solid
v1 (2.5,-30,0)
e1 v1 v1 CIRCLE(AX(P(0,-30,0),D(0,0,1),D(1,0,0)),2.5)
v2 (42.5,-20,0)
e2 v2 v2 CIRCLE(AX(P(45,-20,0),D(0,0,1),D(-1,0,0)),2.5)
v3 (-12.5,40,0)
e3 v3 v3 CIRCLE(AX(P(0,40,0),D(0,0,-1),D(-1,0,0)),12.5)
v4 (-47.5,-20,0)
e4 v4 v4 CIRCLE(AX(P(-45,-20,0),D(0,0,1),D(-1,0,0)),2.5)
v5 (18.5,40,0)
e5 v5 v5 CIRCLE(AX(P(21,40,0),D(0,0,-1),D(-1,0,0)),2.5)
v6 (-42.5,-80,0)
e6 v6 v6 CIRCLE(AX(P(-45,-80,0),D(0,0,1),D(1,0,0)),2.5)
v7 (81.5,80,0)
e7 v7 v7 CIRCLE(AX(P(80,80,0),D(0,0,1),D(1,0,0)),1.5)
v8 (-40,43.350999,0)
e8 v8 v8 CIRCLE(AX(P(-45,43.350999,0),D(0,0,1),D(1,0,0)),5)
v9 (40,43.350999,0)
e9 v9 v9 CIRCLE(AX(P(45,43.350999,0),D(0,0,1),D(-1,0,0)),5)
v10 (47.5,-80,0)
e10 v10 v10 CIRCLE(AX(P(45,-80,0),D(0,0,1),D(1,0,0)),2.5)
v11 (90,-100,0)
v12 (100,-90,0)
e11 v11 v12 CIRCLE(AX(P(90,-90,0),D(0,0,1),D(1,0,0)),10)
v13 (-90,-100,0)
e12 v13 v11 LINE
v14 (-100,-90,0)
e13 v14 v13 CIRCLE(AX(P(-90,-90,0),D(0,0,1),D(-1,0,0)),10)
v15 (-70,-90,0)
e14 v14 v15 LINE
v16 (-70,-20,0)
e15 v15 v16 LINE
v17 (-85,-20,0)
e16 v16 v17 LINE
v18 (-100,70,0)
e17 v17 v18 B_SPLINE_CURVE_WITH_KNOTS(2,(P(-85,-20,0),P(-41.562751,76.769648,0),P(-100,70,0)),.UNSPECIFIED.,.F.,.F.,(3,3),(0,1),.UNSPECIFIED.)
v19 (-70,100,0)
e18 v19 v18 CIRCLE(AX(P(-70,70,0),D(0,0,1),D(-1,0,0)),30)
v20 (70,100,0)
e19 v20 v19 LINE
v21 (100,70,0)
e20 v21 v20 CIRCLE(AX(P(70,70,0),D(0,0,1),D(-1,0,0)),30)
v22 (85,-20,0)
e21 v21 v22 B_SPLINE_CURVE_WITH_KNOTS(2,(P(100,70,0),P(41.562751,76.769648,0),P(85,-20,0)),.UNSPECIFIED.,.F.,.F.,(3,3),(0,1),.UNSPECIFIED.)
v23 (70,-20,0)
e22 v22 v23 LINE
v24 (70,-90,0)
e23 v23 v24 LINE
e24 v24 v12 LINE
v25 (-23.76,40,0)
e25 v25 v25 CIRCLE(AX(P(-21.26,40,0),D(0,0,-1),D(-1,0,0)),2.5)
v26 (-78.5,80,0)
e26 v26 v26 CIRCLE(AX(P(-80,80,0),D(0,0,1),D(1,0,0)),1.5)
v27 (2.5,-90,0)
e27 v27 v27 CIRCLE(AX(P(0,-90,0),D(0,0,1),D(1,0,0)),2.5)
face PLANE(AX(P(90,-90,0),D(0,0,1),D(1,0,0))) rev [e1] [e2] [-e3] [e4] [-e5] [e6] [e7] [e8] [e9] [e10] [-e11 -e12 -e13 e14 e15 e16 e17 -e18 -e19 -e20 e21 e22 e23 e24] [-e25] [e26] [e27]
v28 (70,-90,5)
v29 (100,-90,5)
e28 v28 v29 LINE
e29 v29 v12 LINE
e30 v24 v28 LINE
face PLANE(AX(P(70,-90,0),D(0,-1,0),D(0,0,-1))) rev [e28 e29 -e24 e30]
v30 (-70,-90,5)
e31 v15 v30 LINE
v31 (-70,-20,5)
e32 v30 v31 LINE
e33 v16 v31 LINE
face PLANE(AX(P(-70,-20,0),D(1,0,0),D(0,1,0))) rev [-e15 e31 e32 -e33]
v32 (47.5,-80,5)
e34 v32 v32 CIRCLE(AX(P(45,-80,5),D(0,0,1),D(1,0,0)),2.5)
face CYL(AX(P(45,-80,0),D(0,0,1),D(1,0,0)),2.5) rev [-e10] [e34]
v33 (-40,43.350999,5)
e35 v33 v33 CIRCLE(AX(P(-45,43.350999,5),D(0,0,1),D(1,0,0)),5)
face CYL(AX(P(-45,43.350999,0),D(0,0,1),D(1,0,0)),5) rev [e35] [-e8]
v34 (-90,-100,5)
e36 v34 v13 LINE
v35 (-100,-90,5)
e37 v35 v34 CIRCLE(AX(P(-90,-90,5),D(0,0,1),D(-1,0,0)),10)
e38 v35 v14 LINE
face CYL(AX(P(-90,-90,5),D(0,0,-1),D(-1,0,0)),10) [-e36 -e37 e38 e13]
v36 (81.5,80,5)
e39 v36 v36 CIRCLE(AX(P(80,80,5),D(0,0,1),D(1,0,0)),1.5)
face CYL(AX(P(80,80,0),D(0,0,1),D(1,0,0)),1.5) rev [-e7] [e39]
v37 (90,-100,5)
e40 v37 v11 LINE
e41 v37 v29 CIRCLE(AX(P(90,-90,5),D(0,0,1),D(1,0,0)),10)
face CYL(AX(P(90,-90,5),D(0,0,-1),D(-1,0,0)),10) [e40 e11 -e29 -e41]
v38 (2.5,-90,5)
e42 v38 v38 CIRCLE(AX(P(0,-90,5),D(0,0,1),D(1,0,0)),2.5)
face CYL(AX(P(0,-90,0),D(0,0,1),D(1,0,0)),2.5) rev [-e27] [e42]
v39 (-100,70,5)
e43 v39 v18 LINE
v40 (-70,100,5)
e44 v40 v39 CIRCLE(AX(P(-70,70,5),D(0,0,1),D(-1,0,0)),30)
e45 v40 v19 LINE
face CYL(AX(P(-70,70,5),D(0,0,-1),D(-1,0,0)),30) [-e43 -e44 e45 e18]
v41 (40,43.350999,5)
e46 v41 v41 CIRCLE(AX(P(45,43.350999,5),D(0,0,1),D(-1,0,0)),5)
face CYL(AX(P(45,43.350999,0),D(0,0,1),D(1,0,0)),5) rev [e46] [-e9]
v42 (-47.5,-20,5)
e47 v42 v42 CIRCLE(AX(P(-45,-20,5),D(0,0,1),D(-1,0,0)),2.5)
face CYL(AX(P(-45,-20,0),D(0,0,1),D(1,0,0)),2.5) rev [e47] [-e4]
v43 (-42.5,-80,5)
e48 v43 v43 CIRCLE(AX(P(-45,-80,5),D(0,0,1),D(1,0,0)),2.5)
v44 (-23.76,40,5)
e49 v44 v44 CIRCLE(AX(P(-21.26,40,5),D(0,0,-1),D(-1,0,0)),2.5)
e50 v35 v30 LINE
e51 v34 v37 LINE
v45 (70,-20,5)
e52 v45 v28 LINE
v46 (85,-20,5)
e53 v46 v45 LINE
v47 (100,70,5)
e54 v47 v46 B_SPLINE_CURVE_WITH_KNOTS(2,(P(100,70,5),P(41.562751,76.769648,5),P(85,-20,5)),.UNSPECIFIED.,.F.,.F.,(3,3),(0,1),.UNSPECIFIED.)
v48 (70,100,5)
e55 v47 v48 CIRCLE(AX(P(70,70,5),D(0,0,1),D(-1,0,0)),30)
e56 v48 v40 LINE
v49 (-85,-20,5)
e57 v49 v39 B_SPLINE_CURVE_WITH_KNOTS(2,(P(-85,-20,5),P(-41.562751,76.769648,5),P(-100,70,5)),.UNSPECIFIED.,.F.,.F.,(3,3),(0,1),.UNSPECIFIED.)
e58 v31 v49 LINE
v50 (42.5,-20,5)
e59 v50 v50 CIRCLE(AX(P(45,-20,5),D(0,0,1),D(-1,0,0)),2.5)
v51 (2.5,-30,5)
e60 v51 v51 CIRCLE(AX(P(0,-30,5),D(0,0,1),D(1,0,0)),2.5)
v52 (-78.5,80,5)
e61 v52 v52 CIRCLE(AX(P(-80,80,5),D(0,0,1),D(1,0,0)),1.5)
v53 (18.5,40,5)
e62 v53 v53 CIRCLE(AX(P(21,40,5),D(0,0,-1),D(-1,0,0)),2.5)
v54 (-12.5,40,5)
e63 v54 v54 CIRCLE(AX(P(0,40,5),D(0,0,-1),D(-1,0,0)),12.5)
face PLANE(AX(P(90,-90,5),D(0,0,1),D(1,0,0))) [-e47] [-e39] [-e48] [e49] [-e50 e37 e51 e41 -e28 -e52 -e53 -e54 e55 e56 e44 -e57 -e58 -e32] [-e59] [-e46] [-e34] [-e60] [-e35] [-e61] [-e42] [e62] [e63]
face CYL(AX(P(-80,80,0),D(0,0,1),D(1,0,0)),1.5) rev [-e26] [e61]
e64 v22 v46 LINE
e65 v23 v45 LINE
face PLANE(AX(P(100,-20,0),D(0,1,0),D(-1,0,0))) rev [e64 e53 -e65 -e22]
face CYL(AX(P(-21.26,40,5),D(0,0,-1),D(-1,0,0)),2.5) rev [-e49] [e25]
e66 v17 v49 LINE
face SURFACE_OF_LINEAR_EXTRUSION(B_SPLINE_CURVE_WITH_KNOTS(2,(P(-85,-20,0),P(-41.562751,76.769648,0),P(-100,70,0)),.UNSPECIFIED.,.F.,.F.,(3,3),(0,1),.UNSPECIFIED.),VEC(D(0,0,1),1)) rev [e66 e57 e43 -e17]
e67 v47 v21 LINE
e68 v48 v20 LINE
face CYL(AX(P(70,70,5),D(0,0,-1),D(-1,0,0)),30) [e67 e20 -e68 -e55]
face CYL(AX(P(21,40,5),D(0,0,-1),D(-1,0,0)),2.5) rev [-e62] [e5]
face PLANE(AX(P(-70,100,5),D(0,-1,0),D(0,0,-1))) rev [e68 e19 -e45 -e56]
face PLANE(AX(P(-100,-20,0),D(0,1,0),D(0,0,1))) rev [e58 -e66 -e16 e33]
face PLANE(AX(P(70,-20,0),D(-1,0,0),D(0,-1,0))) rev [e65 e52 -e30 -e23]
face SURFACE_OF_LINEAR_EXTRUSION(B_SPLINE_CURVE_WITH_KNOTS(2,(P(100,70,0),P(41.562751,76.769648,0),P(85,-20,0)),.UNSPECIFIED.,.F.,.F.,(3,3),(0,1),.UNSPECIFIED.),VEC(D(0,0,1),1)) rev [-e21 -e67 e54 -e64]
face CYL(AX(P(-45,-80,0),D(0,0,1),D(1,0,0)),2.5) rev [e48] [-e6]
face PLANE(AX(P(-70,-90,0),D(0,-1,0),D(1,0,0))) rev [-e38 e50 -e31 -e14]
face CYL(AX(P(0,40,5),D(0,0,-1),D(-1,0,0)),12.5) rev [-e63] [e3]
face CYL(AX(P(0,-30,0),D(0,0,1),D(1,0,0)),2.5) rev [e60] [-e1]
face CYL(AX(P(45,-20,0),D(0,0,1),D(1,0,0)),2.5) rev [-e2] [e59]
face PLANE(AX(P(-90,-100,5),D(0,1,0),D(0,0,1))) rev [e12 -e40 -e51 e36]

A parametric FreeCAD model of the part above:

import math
import FreeCAD as App
import Part
import Sketcher


def add_polygon(sketch, points):
    """Adds a closed chain of lines whose ends are joined by coincident constraints."""
    first, n = sketch.GeometryCount, len(points)
    for a, b in zip(points, points[1:] + points[:1]):
        sketch.addGeometry(Part.LineSegment(App.Vector(*a, 0), App.Vector(*b, 0)), False)
    for i in range(n):
        sketch.addConstraint(Sketcher.Constraint("Coincident", first + i, 2, first + (i + 1) % n, 1))

doc = App.newDocument("Part")
body = doc.addObject("PartDesign::Body", "Body")

# Sketch on XY plane
sketch1 = body.newObject("Sketcher::SketchObject", "Sketch")
sketch1.AttachmentSupport = (doc.getObject("XY_Plane"), [""])
sketch1.MapMode = "FlatFace"
sketch1.addGeometry(Part.LineSegment(App.Vector(-90, -100, 0), App.Vector(90, -100, 0)), False)
sketch1.addGeometry(Part.ArcOfCircle(Part.Circle(App.Vector(90, -90, 0), App.Vector(0, 0, 1), 10), math.radians(-90), math.radians(0)), False)
sketch1.addGeometry(Part.LineSegment(App.Vector(100, -90, 0), App.Vector(100, 70, 0)), False)
sketch1.addGeometry(Part.ArcOfCircle(Part.Circle(App.Vector(70, 70, 0), App.Vector(0, 0, 1), 30), math.radians(0), math.radians(90)), False)
sketch1.addGeometry(Part.LineSegment(App.Vector(70, 100, 0), App.Vector(-70, 100, 0)), False)
sketch1.addGeometry(Part.ArcOfCircle(Part.Circle(App.Vector(-70, 70, 0), App.Vector(0, 0, 1), 30), math.radians(90), math.radians(180)), False)
sketch1.addGeometry(Part.LineSegment(App.Vector(-100, 70, 0), App.Vector(-100, -90, 0)), False)
sketch1.addGeometry(Part.ArcOfCircle(Part.Circle(App.Vector(-90, -90, 0), App.Vector(0, 0, 1), 10), math.radians(180), math.radians(270)), False)
sketch1.addConstraint(Sketcher.Constraint("Tangent", 0, 2, 1, 1))
sketch1.addConstraint(Sketcher.Constraint("Tangent", 1, 2, 2, 1))
sketch1.addConstraint(Sketcher.Constraint("Tangent", 2, 2, 3, 1))
sketch1.addConstraint(Sketcher.Constraint("Tangent", 3, 2, 4, 1))
sketch1.addConstraint(Sketcher.Constraint("Tangent", 4, 2, 5, 1))
sketch1.addConstraint(Sketcher.Constraint("Tangent", 5, 2, 6, 1))
sketch1.addConstraint(Sketcher.Constraint("Tangent", 6, 2, 7, 1))
sketch1.addConstraint(Sketcher.Constraint("Tangent", 7, 2, 0, 1))
sketch1.addConstraint(Sketcher.Constraint("Horizontal", 0))
sketch1.addConstraint(Sketcher.Constraint("Vertical", 2))
sketch1.addConstraint(Sketcher.Constraint("Horizontal", 4))
sketch1.addConstraint(Sketcher.Constraint("Vertical", 6))
sketch1.addConstraint(Sketcher.Constraint("Equal", 3, 5))
sketch1.addConstraint(Sketcher.Constraint("Equal", 1, 7))
sketch1.addConstraint(Sketcher.Constraint("Radius", 1, 10.0))
sketch1.addConstraint(Sketcher.Constraint("Radius", 3, 30.0))
sketch1.addConstraint(Sketcher.Constraint("DistanceX", 0, 1, 0, 2, 180.0))
sketch1.addConstraint(Sketcher.Constraint("DistanceY", 2, 1, 2, 2, 160.0))
sketch1.addConstraint(Sketcher.Constraint("DistanceX", -1, 1, 1, 3, 90.0))
sketch1.addConstraint(Sketcher.Constraint("DistanceY", 1, 3, -1, 1, 90.0))
pad1 = body.newObject("PartDesign::Pad", "Pad")
pad1.Profile = sketch1
pad1.Length = 5

# Sketch on XY plane
sketch2 = body.newObject("Sketcher::SketchObject", "Sketch001")
sketch2.AttachmentSupport = (doc.getObject("XY_Plane"), [""])
sketch2.MapMode = "FlatFace"
sketch2.AttachmentOffset = App.Placement(App.Vector(0, 0, 5), App.Rotation())
add_polygon(sketch2, [(70, -20), (70, -90), (100, -90), (100, -20)])  # lines 0-3
add_polygon(sketch2, [(-100, -20), (-100, -90), (-70, -90), (-70, -20)])  # lines 4-7
sketch2.addConstraint(Sketcher.Constraint("Vertical", 0))
sketch2.addConstraint(Sketcher.Constraint("Horizontal", 1))
sketch2.addConstraint(Sketcher.Constraint("Vertical", 2))
sketch2.addConstraint(Sketcher.Constraint("Horizontal", 3))
sketch2.addConstraint(Sketcher.Constraint("Vertical", 4))
sketch2.addConstraint(Sketcher.Constraint("Horizontal", 5))
sketch2.addConstraint(Sketcher.Constraint("Vertical", 6))
sketch2.addConstraint(Sketcher.Constraint("Horizontal", 7))
sketch2.addConstraint(Sketcher.Constraint("Symmetric", 1, 2, 4, 2, -2))
sketch2.addConstraint(Sketcher.Constraint("Symmetric", 3, 2, 6, 2, -2))
sketch2.addConstraint(Sketcher.Constraint("DistanceX", 1, 1, 1, 2, 30.0))
sketch2.addConstraint(Sketcher.Constraint("DistanceY", 0, 2, 0, 1, 70.0))
sketch2.addConstraint(Sketcher.Constraint("DistanceX", -1, 1, 0, 2, 70.0))
sketch2.addConstraint(Sketcher.Constraint("DistanceY", 0, 2, -1, 1, 90.0))
pocket1 = body.newObject("PartDesign::Pocket", "Pocket")
pocket1.Profile = sketch2
pocket1.Length = 5

# Sketch on XY plane
sketch3 = body.newObject("Sketcher::SketchObject", "Sketch002")
sketch3.AttachmentSupport = (doc.getObject("XY_Plane"), [""])
sketch3.MapMode = "FlatFace"
sketch3.AttachmentOffset = App.Placement(App.Vector(0, 0, 5), App.Rotation())
sketch3.addGeometry(Part.LineSegment(App.Vector(85, -20, 0), App.Vector(100, -20, 0)), False)
sketch3.addGeometry(Part.LineSegment(App.Vector(100, -20, 0), App.Vector(100, 70, 0)), False)
sketch3.addGeometry(Part.BSplineCurve([App.Vector(100, 70, 0), App.Vector(41.562751, 76.769648, 0), App.Vector(85, -20, 0)], [3, 3], [0, 1], False, 2, [1, 1, 1], False), False)
sketch3.addGeometry(Part.LineSegment(App.Vector(-100, -20, 0), App.Vector(-85, -20, 0)), False)
sketch3.addGeometry(Part.BSplineCurve([App.Vector(-100, 70, 0), App.Vector(-41.562751, 76.769648, 0), App.Vector(-85, -20, 0)], [3, 3], [0, 1], False, 2, [1, 1, 1], False), False)
sketch3.addGeometry(Part.LineSegment(App.Vector(-100, 70, 0), App.Vector(-100, -20, 0)), False)
sketch3.addConstraint(Sketcher.Constraint("Block", 2))
sketch3.addConstraint(Sketcher.Constraint("Block", 4))
sketch3.addConstraint(Sketcher.Constraint("Coincident", 0, 2, 1, 1))
sketch3.addConstraint(Sketcher.Constraint("Coincident", 1, 2, 2, 1))
sketch3.addConstraint(Sketcher.Constraint("Coincident", 2, 2, 0, 1))
sketch3.addConstraint(Sketcher.Constraint("Coincident", 3, 2, 4, 2))
sketch3.addConstraint(Sketcher.Constraint("Coincident", 4, 1, 5, 1))
sketch3.addConstraint(Sketcher.Constraint("Coincident", 5, 2, 3, 1))
sketch3.addConstraint(Sketcher.Constraint("Horizontal", 0))
sketch3.addConstraint(Sketcher.Constraint("Vertical", 1))
sketch3.addConstraint(Sketcher.Constraint("Horizontal", 3))
sketch3.addConstraint(Sketcher.Constraint("Vertical", 5))
pocket2 = body.newObject("PartDesign::Pocket", "Pocket001")
pocket2.Profile = sketch3
pocket2.Length = 5

# Sketch on XY plane
sketch4 = body.newObject("Sketcher::SketchObject", "Sketch003")
sketch4.AttachmentSupport = (doc.getObject("XY_Plane"), [""])
sketch4.MapMode = "FlatFace"
sketch4.AttachmentOffset = App.Placement(App.Vector(0, 0, 5), App.Rotation())
sketch4.addGeometry(Part.Circle(App.Vector(45, -80, 0), App.Vector(0, 0, 1), 2.5), False)
sketch4.addGeometry(Part.Circle(App.Vector(-45, -80, 0), App.Vector(0, 0, 1), 2.5), False)
sketch4.addGeometry(Part.Circle(App.Vector(45, -20, 0), App.Vector(0, 0, 1), 2.5), False)
sketch4.addGeometry(Part.Circle(App.Vector(-45, -20, 0), App.Vector(0, 0, 1), 2.5), False)
sketch4.addGeometry(Part.Circle(App.Vector(-45, 43.4, 0), App.Vector(0, 0, 1), 5), False)
sketch4.addGeometry(Part.Circle(App.Vector(45, 43.4, 0), App.Vector(0, 0, 1), 5), False)
sketch4.addGeometry(Part.Circle(App.Vector(0, -30, 0), App.Vector(0, 0, 1), 2.5), False)
sketch4.addConstraint(Sketcher.Constraint("Equal", 0, 1))
sketch4.addConstraint(Sketcher.Constraint("Equal", 1, 2))
sketch4.addConstraint(Sketcher.Constraint("Equal", 2, 3))
sketch4.addConstraint(Sketcher.Constraint("Equal", 4, 5))
sketch4.addConstraint(Sketcher.Constraint("Equal", 3, 6))
sketch4.addConstraint(Sketcher.Constraint("Symmetric", 0, 3, 1, 3, -2))
sketch4.addConstraint(Sketcher.Constraint("Symmetric", 2, 3, 3, 3, -2))
sketch4.addConstraint(Sketcher.Constraint("Symmetric", 4, 3, 5, 3, -2))
sketch4.addConstraint(Sketcher.Constraint("PointOnObject", 6, 3, -2))
sketch4.addConstraint(Sketcher.Constraint("Vertical", 0, 3, 2, 3))
sketch4.addConstraint(Sketcher.Constraint("Vertical", 3, 3, 4, 3))
sketch4.addConstraint(Sketcher.Constraint("Diameter", 0, 5.0))
sketch4.addConstraint(Sketcher.Constraint("Diameter", 4, 10.0))
sketch4.addConstraint(Sketcher.Constraint("DistanceX", -1, 1, 0, 3, 45.0))
sketch4.addConstraint(Sketcher.Constraint("DistanceY", 0, 3, -1, 1, 80.0))
sketch4.addConstraint(Sketcher.Constraint("DistanceY", 2, 3, -1, 1, 20.0))
sketch4.addConstraint(Sketcher.Constraint("DistanceY", 6, 3, -1, 1, 30.0))
sketch4.addConstraint(Sketcher.Constraint("DistanceY", -1, 1, 4, 3, 43.350999))
pocket3 = body.newObject("PartDesign::Pocket", "Pocket002")
pocket3.Profile = sketch4
pocket3.Length = 5

# Sketch on XY plane
sketch5 = body.newObject("Sketcher::SketchObject", "Sketch004")
sketch5.AttachmentSupport = (doc.getObject("XY_Plane"), [""])
sketch5.MapMode = "FlatFace"
sketch5.AttachmentOffset = App.Placement(App.Vector(0, 0, 5), App.Rotation())
sketch5.addGeometry(Part.Circle(App.Vector(0, -90, 0), App.Vector(0, 0, 1), 2.5), False)
sketch5.addConstraint(Sketcher.Constraint("PointOnObject", 0, 3, -2))
sketch5.addConstraint(Sketcher.Constraint("Diameter", 0, 5.0))
sketch5.addConstraint(Sketcher.Constraint("DistanceY", 0, 3, -1, 1, 90.0))
pocket4 = body.newObject("PartDesign::Pocket", "Pocket003")
pocket4.Profile = sketch5
pocket4.Length = 5

# Sketch on XY plane
sketch6 = body.newObject("Sketcher::SketchObject", "Sketch005")
sketch6.AttachmentSupport = (doc.getObject("XY_Plane"), [""])
sketch6.MapMode = "FlatFace"
sketch6.addGeometry(Part.Circle(App.Vector(0, 40, 0), App.Vector(0, 0, 1), 12.5), False)
sketch6.addGeometry(Part.Circle(App.Vector(21, 40, 0), App.Vector(0, 0, 1), 2.5), False)
sketch6.addGeometry(Part.Circle(App.Vector(-21.3, 40, 0), App.Vector(0, 0, 1), 2.5), False)
sketch6.addConstraint(Sketcher.Constraint("Equal", 1, 2))
sketch6.addConstraint(Sketcher.Constraint("PointOnObject", 0, 3, -2))
sketch6.addConstraint(Sketcher.Constraint("Horizontal", 0, 3, 1, 3))
sketch6.addConstraint(Sketcher.Constraint("Horizontal", 1, 3, 2, 3))
sketch6.addConstraint(Sketcher.Constraint("Diameter", 0, 25.0))
sketch6.addConstraint(Sketcher.Constraint("Diameter", 1, 5.0))
sketch6.addConstraint(Sketcher.Constraint("DistanceY", -1, 1, 0, 3, 40.0))
sketch6.addConstraint(Sketcher.Constraint("DistanceX", -1, 1, 1, 3, 21.0))
sketch6.addConstraint(Sketcher.Constraint("DistanceX", 2, 3, -1, 1, 21.26))
pocket5 = body.newObject("PartDesign::Pocket", "Pocket004")
pocket5.Profile = sketch6
pocket5.Length = 5
pocket5.Reversed = True

# Sketch on XY plane
sketch7 = body.newObject("Sketcher::SketchObject", "Sketch006")
sketch7.AttachmentSupport = (doc.getObject("XY_Plane"), [""])
sketch7.MapMode = "FlatFace"
sketch7.AttachmentOffset = App.Placement(App.Vector(0, 0, 5), App.Rotation())
sketch7.addGeometry(Part.Circle(App.Vector(-80, 80, 0), App.Vector(0, 0, 1), 1.5), False)
sketch7.addGeometry(Part.Circle(App.Vector(80, 80, 0), App.Vector(0, 0, 1), 1.5), False)
sketch7.addConstraint(Sketcher.Constraint("Equal", 0, 1))
sketch7.addConstraint(Sketcher.Constraint("Symmetric", 0, 3, 1, 3, -2))
sketch7.addConstraint(Sketcher.Constraint("Diameter", 0, 3.0))
sketch7.addConstraint(Sketcher.Constraint("DistanceX", 0, 3, -1, 1, 80.0))
sketch7.addConstraint(Sketcher.Constraint("DistanceY", -1, 1, 0, 3, 80.0))
pocket6 = body.newObject("PartDesign::Pocket", "Pocket005")
pocket6.Profile = sketch7
pocket6.Length = 5

doc.recompute()
